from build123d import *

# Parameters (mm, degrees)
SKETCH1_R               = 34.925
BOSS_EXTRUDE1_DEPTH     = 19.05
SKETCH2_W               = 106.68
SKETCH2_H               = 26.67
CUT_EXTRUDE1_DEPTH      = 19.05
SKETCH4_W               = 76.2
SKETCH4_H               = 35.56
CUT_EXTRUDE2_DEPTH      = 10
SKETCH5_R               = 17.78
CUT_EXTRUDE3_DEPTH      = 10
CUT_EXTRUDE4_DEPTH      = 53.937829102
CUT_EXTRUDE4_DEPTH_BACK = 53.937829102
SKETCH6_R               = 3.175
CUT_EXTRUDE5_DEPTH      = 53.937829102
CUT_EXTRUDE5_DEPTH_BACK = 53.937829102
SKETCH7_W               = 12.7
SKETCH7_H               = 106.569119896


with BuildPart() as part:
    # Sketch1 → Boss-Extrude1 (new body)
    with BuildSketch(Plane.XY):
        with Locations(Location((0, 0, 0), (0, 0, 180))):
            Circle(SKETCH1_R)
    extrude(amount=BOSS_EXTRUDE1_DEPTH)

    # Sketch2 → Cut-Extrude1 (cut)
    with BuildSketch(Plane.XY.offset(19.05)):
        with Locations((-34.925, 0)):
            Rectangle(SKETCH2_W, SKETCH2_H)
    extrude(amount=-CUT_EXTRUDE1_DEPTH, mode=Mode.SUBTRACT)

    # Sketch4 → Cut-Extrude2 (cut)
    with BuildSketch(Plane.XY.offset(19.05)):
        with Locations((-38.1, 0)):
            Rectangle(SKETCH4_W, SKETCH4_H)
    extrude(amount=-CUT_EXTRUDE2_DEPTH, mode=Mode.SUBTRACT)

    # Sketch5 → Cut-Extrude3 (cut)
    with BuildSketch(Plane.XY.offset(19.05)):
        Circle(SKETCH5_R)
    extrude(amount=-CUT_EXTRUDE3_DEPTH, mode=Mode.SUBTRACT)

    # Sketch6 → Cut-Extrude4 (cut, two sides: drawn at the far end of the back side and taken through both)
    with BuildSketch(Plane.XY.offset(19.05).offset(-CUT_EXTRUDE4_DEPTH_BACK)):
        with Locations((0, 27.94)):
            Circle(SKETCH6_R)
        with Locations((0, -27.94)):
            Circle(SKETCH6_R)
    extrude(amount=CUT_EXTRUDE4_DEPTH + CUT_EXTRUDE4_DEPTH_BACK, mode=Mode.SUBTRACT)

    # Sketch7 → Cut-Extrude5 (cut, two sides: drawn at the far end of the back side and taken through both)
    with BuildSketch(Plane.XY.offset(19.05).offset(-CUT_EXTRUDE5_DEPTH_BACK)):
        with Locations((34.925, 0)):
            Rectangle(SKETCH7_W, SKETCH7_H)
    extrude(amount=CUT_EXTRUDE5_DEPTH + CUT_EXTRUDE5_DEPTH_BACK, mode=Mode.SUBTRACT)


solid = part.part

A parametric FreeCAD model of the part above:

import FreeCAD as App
import Part
import Sketcher
from FreeCAD import Vector
Q = App.Units.Quantity


def add_polygon(sketch, points):
    """Adds a closed chain of lines whose ends are joined by coincident constraints."""
    first, n = sketch.GeometryCount, len(points)
    for a, b in zip(points, points[1:] + points[:1]):
        sketch.addGeometry(Part.LineSegment(App.Vector(*a, 0), App.Vector(*b, 0)), False)
    for i in range(n):
        sketch.addConstraint(Sketcher.Constraint("Coincident", first + i, 2, first + (i + 1) % n, 1))

doc = App.newDocument("Part")
body = doc.addObject("PartDesign::Body", "Body")

sketch1 = doc.addObject("Sketcher::SketchObject", "Sketch")
body.addObject(sketch1)
sketch1.AttachmentSupport = (doc.XY_Plane, [""])
sketch1.MapMode = "FlatFace"
sketch1.addGeometry(Part.Circle(Vector(0, 0, 0), Vector(0, 0, 1), 34.925), False)
sketch1.addConstraint(Sketcher.Constraint("Coincident", 0, 3, -1, 1))
sketch1.addConstraint(Sketcher.Constraint("Diameter", 0, Q("2.75 in")))
pad1 = doc.addObject("PartDesign::Pad", "Pad")
body.addObject(pad1)
pad1.Profile = sketch1
pad1.Length = Q("0.75 in")

sketch2 = doc.addObject("Sketcher::SketchObject", "Sketch001")
body.addObject(sketch2)
sketch2.AttachmentSupport = (doc.XY_Plane, [""])
sketch2.MapMode = "FlatFace"
sketch2.AttachmentOffset = App.Placement(Vector(0, 0, 0.75 * 25.4), App.Rotation())
add_polygon(sketch2, [(-88.265, 13.335), (-88.265, -13.335), (18.415, -13.335), (18.415, 13.335)])
sketch2.addConstraint(Sketcher.Constraint("Vertical", 0))
sketch2.addConstraint(Sketcher.Constraint("Horizontal", 1))
sketch2.addConstraint(Sketcher.Constraint("Vertical", 2))
sketch2.addConstraint(Sketcher.Constraint("Horizontal", 3))
sketch2.addConstraint(Sketcher.Constraint("DistanceX", 1, 1, 1, 2, Q("4.2 in")))
sketch2.addConstraint(Sketcher.Constraint("DistanceY", 0, 2, 0, 1, Q("1.05 in")))
sketch2.addConstraint(Sketcher.Constraint("DistanceX", 0, 2, -1, 1, Q("3.475 in")))
sketch2.addConstraint(Sketcher.Constraint("DistanceY", 0, 2, -1, 1, Q("0.525 in")))
pocket1 = doc.addObject("PartDesign::Pocket", "Pocket")
body.addObject(pocket1)
pocket1.Profile = sketch2
pocket1.Length = Q("0.75 in")

sketch3 = doc.addObject("Sketcher::SketchObject", "Sketch002")
body.addObject(sketch3)
sketch3.AttachmentSupport = (doc.XY_Plane, [""])
sketch3.MapMode = "FlatFace"
sketch3.AttachmentOffset = App.Placement(Vector(0, 0, 0.75 * 25.4), App.Rotation())
add_polygon(sketch3, [(-76.2, 17.78), (-76.2, -17.78), (0, -17.78), (0, 17.78)])
sketch3.addConstraint(Sketcher.Constraint("Vertical", 0))
sketch3.addConstraint(Sketcher.Constraint("Horizontal", 1))
sketch3.addConstraint(Sketcher.Constraint("Vertical", 2))
sketch3.addConstraint(Sketcher.Constraint("Horizontal", 3))
sketch3.addConstraint(Sketcher.Constraint("Symmetric", 1, 2, 2, 2, -1, 1))
sketch3.addConstraint(Sketcher.Constraint("DistanceX", 1, 1, 1, 2, Q("3 in")))
sketch3.addConstraint(Sketcher.Constraint("DistanceY", 0, 2, 0, 1, Q("1.4 in")))
pocket2 = doc.addObject("PartDesign::Pocket", "Pocket001")
body.addObject(pocket2)
pocket2.Profile = sketch3
pocket2.Length = 10

sketch4 = doc.addObject("Sketcher::SketchObject", "Sketch003")
body.addObject(sketch4)
sketch4.AttachmentSupport = (doc.XY_Plane, [""])
sketch4.MapMode = "FlatFace"
sketch4.AttachmentOffset = App.Placement(Vector(0, 0, 0.75 * 25.4), App.Rotation())
sketch4.addGeometry(Part.Circle(Vector(0, 0, 0), Vector(0, 0, 1), 17.78), False)
sketch4.addConstraint(Sketcher.Constraint("Coincident", 0, 3, -1, 1))
sketch4.addConstraint(Sketcher.Constraint("Diameter", 0, Q("1.4 in")))
pocket3 = doc.addObject("PartDesign::Pocket", "Pocket002")
body.addObject(pocket3)
pocket3.Profile = sketch4
pocket3.Length = 10

sketch5 = doc.addObject("Sketcher::SketchObject", "Sketch004")
body.addObject(sketch5)
sketch5.AttachmentSupport = (doc.XY_Plane, [""])
sketch5.MapMode = "FlatFace"
sketch5.AttachmentOffset = App.Placement(Vector(0, 0, 0.75 * 25.4), App.Rotation())
sketch5.addGeometry(Part.Circle(Vector(0, 27.94, 0), Vector(0, 0, 1), 3.175), False)
sketch5.addGeometry(Part.Circle(Vector(0, -27.94, 0), Vector(0, 0, 1), 3.175), False)
sketch5.addConstraint(Sketcher.Constraint("Equal", 0, 1))
sketch5.addConstraint(Sketcher.Constraint("Symmetric", 0, 3, 1, 3, -1, 1))
sketch5.addConstraint(Sketcher.Constraint("PointOnObject", 0, 3, -2))
sketch5.addConstraint(Sketcher.Constraint("Diameter", 0, Q("0.25 in")))
sketch5.addConstraint(Sketcher.Constraint("DistanceY", -1, 1, 0, 3, Q("1.1 in")))
pocket4 = doc.addObject("PartDesign::Pocket", "Pocket003")
body.addObject(pocket4)
pocket4.Profile = sketch5
pocket4.Type = "ThroughAll"
pocket4.Midplane = True

sketch6 = doc.addObject("Sketcher::SketchObject", "Sketch005")
body.addObject(sketch6)
sketch6.AttachmentSupport = (doc.XY_Plane, [""])
sketch6.MapMode = "FlatFace"
sketch6.AttachmentOffset = App.Placement(Vector(0, 0, 0.75 * 25.4), App.Rotation())
add_polygon(sketch6, [(28.575, 53.28456), (28.575, -53.28456), (41.275, -53.28456), (41.275, 53.28456)])
sketch6.addConstraint(Sketcher.Constraint("Vertical", 0))
sketch6.addConstraint(Sketcher.Constraint("Horizontal", 1))
sketch6.addConstraint(Sketcher.Constraint("Vertical", 2))
sketch6.addConstraint(Sketcher.Constraint("Horizontal", 3))
sketch6.addConstraint(Sketcher.Constraint("DistanceX", 1, 1, 1, 2, Q("0.5 in")))
sketch6.addConstraint(Sketcher.Constraint("DistanceX", -1, 1, 0, 2, Q("1.125 in")))
sketch6.addConstraint(Sketcher.Constraint("DistanceY", 0, 2, 0, 1, 106.56912))
sketch6.addConstraint(Sketcher.Constraint("DistanceY", 0, 2, -1, 1, 53.28456))
pocket5 = doc.addObject("PartDesign::Pocket", "Pocket004")
body.addObject(pocket5)
pocket5.Profile = sketch6
pocket5.Type = "ThroughAll"
pocket5.Midplane = True

doc.recompute()
